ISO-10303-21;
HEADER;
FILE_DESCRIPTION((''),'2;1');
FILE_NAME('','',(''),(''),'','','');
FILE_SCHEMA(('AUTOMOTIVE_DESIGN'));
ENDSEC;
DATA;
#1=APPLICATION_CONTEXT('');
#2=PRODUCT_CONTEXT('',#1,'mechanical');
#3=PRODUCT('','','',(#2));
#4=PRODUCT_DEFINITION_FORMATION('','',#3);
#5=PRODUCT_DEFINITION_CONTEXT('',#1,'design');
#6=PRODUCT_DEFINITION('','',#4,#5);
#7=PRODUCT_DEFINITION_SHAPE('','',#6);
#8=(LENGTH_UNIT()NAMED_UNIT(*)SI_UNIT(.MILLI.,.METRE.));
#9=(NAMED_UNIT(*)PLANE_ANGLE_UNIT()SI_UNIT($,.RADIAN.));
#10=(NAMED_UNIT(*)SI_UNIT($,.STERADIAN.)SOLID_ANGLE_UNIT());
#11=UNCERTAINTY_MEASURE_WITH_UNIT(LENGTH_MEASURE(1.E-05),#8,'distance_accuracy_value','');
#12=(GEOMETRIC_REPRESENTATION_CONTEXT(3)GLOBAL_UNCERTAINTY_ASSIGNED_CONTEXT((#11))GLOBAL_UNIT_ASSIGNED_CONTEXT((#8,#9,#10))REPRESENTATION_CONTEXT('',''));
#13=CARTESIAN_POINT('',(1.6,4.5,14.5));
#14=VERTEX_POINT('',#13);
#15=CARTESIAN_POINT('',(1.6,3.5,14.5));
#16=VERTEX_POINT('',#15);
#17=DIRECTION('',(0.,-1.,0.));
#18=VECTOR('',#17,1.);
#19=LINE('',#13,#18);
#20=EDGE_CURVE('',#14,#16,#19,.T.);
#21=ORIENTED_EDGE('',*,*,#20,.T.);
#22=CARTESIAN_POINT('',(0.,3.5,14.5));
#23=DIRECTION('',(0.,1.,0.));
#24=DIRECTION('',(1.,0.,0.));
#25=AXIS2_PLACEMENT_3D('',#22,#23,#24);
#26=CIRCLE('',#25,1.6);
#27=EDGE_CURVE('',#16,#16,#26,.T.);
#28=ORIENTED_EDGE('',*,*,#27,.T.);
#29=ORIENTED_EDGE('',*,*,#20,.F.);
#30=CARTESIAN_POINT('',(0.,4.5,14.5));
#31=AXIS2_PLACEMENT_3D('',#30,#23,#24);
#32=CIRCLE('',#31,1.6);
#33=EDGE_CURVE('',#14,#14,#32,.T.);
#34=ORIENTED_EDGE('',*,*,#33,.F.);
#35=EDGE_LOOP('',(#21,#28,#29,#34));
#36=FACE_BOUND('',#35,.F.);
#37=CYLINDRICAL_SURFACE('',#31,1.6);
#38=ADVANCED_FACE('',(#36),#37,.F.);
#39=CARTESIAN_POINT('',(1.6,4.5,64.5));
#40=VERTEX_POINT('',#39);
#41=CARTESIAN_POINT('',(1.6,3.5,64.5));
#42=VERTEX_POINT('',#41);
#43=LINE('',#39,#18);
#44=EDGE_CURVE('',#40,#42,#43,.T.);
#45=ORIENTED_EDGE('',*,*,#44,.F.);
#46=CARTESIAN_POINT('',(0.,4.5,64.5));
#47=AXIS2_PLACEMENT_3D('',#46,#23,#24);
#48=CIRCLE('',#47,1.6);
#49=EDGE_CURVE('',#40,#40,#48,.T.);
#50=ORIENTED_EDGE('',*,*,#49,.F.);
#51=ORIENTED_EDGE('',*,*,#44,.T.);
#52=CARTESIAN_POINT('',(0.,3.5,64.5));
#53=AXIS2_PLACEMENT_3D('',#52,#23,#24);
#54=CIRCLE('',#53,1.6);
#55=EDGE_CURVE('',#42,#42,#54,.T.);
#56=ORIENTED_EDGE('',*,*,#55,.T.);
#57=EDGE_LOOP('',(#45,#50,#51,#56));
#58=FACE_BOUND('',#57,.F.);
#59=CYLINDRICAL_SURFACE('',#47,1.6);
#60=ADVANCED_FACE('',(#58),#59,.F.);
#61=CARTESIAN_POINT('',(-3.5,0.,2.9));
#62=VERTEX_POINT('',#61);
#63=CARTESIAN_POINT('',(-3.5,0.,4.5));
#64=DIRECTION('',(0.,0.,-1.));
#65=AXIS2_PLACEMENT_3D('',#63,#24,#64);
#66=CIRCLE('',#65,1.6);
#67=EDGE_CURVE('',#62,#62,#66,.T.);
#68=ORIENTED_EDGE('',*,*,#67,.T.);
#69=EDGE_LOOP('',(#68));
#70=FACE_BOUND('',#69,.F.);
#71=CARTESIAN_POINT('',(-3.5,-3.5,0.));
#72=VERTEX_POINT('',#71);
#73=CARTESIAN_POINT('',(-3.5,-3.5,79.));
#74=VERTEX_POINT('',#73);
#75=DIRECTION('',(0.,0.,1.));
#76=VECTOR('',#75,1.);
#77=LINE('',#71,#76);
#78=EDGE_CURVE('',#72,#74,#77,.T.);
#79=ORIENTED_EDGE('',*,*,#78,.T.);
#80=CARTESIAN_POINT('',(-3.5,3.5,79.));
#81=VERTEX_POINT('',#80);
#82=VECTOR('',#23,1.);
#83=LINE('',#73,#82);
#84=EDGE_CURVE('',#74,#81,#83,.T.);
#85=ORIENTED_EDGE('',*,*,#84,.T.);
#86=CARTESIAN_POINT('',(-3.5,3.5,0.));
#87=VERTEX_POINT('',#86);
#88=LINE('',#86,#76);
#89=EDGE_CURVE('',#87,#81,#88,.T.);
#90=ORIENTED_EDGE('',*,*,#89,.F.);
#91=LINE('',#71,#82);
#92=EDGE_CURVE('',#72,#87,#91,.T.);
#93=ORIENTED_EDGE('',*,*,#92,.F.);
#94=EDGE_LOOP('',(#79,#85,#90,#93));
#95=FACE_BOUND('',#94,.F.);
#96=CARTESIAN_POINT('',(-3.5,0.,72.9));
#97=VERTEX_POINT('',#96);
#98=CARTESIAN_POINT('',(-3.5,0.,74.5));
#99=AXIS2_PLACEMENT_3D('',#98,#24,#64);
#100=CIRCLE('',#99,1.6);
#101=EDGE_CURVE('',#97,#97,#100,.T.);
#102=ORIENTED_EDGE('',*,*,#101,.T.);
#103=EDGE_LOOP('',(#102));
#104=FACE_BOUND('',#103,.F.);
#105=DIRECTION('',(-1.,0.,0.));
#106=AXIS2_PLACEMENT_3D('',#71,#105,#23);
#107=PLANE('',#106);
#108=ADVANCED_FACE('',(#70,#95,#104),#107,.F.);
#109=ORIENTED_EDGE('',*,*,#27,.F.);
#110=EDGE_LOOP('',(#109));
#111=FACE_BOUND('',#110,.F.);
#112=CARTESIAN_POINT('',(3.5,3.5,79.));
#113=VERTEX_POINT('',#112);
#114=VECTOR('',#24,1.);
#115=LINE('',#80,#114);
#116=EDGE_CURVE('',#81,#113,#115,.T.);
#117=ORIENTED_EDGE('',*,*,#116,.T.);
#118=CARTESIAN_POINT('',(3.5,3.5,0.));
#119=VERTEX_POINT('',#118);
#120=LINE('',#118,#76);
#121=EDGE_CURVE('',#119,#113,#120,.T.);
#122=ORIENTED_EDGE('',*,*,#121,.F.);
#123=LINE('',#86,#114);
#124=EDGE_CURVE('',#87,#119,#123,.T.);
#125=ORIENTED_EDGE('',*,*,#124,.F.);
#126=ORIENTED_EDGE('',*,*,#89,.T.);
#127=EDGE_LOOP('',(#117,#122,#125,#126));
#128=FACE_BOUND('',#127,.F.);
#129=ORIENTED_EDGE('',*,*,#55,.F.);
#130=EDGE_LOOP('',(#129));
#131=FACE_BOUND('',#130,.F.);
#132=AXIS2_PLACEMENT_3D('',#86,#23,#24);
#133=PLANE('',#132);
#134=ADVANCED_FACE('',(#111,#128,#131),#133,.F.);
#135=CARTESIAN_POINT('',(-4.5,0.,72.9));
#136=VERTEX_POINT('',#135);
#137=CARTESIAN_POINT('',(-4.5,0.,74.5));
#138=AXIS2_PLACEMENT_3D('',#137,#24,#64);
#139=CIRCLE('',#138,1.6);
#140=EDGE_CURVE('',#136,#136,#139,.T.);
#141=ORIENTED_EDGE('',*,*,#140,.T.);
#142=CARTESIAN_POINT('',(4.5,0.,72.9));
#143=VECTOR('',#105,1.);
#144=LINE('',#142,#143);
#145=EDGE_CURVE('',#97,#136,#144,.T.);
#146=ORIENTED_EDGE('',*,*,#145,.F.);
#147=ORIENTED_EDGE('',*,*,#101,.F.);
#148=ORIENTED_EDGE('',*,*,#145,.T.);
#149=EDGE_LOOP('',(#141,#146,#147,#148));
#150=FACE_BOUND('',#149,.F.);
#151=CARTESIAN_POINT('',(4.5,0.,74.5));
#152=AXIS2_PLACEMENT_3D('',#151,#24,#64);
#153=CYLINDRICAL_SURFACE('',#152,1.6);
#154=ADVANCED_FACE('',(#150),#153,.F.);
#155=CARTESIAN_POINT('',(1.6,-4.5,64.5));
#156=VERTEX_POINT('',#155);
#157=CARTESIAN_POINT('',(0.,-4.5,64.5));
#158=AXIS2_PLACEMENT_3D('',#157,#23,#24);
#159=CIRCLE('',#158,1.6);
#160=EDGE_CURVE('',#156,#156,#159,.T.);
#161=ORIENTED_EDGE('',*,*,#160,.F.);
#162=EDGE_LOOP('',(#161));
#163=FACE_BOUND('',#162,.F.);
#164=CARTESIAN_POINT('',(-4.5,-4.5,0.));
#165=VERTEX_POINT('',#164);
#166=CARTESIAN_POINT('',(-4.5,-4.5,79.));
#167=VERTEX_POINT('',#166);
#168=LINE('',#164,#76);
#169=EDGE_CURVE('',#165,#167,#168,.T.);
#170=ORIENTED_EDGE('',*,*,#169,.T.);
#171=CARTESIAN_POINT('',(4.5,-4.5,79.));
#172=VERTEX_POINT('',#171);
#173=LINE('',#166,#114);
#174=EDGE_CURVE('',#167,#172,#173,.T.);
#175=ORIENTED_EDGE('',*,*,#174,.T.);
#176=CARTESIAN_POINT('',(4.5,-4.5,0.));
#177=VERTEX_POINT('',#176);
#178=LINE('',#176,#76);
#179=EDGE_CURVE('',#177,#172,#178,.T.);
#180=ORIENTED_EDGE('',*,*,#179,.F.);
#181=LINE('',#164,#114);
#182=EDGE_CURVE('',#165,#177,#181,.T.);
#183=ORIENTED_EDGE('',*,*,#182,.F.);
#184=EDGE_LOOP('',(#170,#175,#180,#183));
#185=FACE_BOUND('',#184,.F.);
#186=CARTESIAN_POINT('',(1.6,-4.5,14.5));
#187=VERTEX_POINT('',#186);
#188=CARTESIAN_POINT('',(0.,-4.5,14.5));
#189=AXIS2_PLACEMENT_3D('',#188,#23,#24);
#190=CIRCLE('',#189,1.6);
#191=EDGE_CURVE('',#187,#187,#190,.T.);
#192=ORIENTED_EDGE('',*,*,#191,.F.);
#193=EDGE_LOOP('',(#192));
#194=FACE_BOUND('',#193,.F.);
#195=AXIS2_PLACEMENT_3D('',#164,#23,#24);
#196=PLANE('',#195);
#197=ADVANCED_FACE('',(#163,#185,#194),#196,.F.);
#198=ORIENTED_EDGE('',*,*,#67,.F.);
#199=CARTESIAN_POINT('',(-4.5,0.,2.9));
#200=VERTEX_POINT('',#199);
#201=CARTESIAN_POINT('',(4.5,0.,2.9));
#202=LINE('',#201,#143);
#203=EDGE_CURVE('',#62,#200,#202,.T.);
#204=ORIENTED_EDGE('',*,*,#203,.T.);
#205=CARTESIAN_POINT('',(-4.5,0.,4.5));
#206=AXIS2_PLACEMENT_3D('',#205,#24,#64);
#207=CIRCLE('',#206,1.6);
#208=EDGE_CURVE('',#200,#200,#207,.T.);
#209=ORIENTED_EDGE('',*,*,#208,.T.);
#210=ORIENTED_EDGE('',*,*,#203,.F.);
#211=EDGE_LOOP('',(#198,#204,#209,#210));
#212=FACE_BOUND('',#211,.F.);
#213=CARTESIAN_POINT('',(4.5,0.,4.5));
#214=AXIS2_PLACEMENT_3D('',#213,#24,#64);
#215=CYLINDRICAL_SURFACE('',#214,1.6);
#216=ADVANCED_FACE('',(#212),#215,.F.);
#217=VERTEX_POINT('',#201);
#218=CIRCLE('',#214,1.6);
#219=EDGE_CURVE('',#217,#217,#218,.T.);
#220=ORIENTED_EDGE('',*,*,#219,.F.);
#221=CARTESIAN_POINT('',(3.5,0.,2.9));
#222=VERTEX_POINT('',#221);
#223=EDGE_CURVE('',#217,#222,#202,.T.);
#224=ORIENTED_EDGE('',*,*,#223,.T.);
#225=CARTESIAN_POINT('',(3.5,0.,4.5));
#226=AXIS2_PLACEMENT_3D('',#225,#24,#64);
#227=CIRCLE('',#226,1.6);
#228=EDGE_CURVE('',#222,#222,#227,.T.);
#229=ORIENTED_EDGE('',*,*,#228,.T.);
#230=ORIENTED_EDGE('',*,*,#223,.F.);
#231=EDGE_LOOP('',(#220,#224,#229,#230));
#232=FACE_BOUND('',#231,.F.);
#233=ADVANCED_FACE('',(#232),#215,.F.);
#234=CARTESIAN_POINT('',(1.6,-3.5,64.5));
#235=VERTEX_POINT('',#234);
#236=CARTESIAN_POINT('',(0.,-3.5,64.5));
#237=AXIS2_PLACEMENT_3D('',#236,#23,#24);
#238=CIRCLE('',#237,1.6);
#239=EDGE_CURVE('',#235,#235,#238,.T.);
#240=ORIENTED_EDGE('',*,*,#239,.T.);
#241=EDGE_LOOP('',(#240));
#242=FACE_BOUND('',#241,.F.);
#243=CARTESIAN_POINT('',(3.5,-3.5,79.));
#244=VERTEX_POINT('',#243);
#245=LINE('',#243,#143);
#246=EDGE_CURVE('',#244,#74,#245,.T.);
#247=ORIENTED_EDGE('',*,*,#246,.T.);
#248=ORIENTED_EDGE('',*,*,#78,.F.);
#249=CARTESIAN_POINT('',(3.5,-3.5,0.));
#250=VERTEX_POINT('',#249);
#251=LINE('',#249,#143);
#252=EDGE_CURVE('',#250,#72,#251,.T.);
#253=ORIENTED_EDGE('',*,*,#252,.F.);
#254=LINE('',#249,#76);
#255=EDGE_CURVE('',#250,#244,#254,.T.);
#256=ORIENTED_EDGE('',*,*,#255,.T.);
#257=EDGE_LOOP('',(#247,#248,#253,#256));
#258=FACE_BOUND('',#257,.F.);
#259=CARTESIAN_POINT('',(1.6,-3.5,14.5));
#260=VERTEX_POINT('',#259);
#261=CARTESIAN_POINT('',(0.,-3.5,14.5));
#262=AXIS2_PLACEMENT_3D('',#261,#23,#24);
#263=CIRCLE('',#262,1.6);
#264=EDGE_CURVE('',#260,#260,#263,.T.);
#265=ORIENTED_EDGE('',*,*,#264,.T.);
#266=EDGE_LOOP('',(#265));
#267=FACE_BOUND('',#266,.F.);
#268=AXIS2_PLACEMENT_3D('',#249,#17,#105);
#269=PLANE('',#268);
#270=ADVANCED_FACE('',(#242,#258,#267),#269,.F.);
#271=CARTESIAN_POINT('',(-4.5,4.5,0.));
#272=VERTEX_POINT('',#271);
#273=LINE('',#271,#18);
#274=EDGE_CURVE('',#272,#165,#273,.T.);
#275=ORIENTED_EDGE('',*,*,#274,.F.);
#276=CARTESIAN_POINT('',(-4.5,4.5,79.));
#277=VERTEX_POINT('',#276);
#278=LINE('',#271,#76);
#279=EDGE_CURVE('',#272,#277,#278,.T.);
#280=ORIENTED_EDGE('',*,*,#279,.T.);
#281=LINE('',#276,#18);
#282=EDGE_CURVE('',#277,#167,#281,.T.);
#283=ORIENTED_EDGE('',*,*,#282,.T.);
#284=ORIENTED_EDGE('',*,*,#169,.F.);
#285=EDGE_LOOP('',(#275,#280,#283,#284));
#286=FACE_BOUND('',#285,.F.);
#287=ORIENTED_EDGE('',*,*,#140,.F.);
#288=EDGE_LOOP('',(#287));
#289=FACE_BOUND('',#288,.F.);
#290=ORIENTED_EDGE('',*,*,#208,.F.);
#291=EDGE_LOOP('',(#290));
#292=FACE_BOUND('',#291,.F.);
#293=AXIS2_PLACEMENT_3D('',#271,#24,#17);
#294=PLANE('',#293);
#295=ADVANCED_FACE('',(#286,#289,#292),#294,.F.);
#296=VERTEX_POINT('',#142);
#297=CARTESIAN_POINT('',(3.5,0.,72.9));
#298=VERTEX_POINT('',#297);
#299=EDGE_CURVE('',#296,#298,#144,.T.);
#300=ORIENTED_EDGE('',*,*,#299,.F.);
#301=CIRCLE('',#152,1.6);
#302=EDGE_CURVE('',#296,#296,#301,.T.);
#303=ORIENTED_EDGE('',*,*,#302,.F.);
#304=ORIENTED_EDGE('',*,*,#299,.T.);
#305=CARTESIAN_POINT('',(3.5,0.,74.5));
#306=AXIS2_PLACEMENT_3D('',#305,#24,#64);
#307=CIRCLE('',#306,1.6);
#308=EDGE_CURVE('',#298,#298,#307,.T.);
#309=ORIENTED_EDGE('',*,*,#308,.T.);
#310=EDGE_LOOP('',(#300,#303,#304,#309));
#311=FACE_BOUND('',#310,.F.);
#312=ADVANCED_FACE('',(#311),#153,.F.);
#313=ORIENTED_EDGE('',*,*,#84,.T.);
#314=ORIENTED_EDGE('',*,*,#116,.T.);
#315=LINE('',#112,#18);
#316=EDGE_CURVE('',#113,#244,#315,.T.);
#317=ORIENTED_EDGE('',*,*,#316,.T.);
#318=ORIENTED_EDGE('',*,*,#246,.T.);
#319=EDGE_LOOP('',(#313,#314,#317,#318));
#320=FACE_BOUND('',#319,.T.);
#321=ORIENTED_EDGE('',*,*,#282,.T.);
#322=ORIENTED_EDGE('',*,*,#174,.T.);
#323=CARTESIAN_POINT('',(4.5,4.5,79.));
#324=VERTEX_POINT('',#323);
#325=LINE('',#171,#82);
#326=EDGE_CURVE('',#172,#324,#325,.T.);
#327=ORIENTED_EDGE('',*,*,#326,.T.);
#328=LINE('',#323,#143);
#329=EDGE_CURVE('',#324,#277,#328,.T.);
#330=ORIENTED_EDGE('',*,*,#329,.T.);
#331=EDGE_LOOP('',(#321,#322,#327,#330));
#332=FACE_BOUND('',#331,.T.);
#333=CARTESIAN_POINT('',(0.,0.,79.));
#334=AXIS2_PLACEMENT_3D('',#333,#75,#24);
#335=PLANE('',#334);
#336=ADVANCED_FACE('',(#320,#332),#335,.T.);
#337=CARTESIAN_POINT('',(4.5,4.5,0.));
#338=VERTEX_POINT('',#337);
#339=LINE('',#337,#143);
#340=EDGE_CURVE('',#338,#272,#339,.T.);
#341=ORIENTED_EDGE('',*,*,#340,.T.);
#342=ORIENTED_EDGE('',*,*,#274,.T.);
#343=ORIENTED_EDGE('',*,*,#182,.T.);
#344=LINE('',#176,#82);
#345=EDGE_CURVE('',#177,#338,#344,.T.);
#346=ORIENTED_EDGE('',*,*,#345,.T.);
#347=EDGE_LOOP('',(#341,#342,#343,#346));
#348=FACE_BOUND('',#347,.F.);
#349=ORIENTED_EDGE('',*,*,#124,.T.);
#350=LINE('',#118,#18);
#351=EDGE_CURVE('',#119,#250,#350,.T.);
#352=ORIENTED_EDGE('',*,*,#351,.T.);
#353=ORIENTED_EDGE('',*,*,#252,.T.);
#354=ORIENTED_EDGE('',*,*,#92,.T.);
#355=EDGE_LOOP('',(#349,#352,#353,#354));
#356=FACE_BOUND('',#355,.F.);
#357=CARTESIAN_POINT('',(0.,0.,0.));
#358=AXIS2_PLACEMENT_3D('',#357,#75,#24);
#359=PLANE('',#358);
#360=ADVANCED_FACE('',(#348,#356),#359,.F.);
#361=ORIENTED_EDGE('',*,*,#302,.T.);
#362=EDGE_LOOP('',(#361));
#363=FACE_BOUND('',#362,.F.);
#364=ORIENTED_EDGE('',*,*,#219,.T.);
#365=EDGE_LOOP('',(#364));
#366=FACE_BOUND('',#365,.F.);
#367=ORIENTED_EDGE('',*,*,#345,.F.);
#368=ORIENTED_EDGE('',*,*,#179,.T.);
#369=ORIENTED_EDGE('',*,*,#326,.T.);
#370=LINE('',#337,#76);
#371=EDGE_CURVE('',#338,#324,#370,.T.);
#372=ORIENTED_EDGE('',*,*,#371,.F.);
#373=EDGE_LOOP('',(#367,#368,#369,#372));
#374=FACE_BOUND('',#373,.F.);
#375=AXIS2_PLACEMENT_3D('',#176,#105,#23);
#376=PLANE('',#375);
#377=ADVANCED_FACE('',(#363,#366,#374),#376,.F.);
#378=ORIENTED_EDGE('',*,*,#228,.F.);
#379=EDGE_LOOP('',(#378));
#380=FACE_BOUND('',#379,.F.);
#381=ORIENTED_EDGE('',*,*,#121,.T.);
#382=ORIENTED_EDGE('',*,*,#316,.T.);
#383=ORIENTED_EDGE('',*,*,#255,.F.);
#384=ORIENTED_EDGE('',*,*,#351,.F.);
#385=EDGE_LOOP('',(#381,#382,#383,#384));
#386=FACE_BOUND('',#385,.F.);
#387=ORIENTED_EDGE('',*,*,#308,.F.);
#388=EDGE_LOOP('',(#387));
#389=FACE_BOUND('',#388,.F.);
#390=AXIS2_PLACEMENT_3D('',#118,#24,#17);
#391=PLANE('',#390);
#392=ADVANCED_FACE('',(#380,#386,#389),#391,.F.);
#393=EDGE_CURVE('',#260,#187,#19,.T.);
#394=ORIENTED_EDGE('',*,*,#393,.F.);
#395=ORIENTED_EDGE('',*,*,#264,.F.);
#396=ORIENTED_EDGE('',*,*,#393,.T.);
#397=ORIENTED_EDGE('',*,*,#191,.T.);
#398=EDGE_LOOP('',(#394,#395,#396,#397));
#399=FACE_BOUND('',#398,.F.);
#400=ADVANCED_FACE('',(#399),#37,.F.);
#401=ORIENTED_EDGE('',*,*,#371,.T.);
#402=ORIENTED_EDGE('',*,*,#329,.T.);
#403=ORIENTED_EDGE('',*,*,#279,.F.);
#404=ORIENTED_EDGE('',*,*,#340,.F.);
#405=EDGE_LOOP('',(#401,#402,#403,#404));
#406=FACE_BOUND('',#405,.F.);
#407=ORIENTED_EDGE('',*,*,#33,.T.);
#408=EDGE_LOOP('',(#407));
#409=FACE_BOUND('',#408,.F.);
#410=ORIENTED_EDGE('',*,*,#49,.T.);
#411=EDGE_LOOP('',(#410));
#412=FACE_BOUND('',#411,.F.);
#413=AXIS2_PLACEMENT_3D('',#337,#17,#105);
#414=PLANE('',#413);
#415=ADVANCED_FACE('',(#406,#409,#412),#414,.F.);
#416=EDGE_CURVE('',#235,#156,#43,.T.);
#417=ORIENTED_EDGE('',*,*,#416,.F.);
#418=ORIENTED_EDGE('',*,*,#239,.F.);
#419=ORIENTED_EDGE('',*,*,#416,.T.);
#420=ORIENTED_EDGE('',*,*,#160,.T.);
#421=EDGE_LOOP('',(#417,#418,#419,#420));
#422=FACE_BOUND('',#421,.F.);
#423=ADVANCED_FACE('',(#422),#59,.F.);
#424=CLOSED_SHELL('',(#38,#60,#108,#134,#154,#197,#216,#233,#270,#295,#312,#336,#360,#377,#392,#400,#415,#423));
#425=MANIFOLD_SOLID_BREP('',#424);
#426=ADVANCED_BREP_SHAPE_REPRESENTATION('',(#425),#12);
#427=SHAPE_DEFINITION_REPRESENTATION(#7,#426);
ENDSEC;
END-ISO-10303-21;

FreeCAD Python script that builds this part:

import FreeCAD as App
import Part
import Sketcher


def add_polygon(sketch, points):
    """Adds a closed chain of lines whose ends are joined by coincident constraints."""
    first, n = sketch.GeometryCount, len(points)
    for a, b in zip(points, points[1:] + points[:1]):
        sketch.addGeometry(Part.LineSegment(App.Vector(*a, 0), App.Vector(*b, 0)), False)
    for i in range(n):
        sketch.addConstraint(Sketcher.Constraint("Coincident", first + i, 2, first + (i + 1) % n, 1))

doc = App.newDocument("Part")
params = doc.addObject("Spreadsheet::Sheet", "Params")
for row, (alias, value) in enumerate([
    ("sketch1_width", "9 mm"),
    ("pad1_length", "79 mm"),
    ("sketch2_diameter", "3.2 mm"),
    ("sketch3_diameter", "3.2 mm"),
], start=1):
    params.set(f"A{row}", alias)
    params.set(f"B{row}", "=" + value)
    params.setAlias(f"B{row}", alias)

body = doc.addObject("PartDesign::Body", "Body")

sketch1 = body.newObject("Sketcher::SketchObject", "Sketch")
sketch1.AttachmentSupport = (doc.getObject("XY_Plane"), [""])
sketch1.MapMode = "FlatFace"
add_polygon(sketch1, [(4, -4), (4, 4), (-4, 4), (-4, -4)])
add_polygon(sketch1, [(-4, -4), (-4, 4), (4, 4), (4, -4)])
sketch1.addConstraint(Sketcher.Constraint("Vertical", 0))
sketch1.addConstraint(Sketcher.Constraint("Horizontal", 1))
sketch1.addConstraint(Sketcher.Constraint("Vertical", 2))
sketch1.addConstraint(Sketcher.Constraint("Horizontal", 3))
sketch1.addConstraint(Sketcher.Constraint("Vertical", 4))
sketch1.addConstraint(Sketcher.Constraint("Horizontal", 5))
sketch1.addConstraint(Sketcher.Constraint("Vertical", 6))
sketch1.addConstraint(Sketcher.Constraint("Horizontal", 7))
sketch1.addConstraint(Sketcher.Constraint("Symmetric", 0, 2, 2, 2, -1, 1))
sketch1.addConstraint(Sketcher.Constraint("Symmetric", 4, 2, 6, 2, -1, 1))
sketch1.addConstraint(Sketcher.Constraint("Equal", 3, 0))
sketch1.addConstraint(Sketcher.Constraint("Equal", 7, 4))
sketch1.addConstraint(Sketcher.Constraint("DistanceX", 1, 2, 1, 1, 9.0))
sketch1.addConstraint(Sketcher.Constraint("DistanceX", 1, 2, 4, 2, 1.0))
sketch1.setExpression("Constraints[20]", "Params.sketch1_width")
pad1 = body.newObject("PartDesign::Pad", "Pad")
pad1.Profile = sketch1
pad1.setExpression("Length", "Params.pad1_length")

sketch2 = body.newObject("Sketcher::SketchObject", "Sketch001")
sketch2.AttachmentSupport = (doc.getObject("YZ_Plane"), [""])
sketch2.MapMode = "FlatFace"
sketch2.AttachmentOffset = App.Placement(App.Vector(0, 0, 4.5), App.Rotation())
sketch2.addGeometry(Part.Circle(App.Vector(0, 4.5, 0), App.Vector(0, 0, 1), 1.6), False)
sketch2.addGeometry(Part.Circle(App.Vector(0, 74.5, 0), App.Vector(0, 0, 1), 1.6), False)
sketch2.addConstraint(Sketcher.Constraint("Equal", 0, 1))
sketch2.addConstraint(Sketcher.Constraint("PointOnObject", 0, 3, -2))
sketch2.addConstraint(Sketcher.Constraint("PointOnObject", 1, 3, -2))
sketch2.addConstraint(Sketcher.Constraint("Diameter", 0, 3.2))
sketch2.addConstraint(Sketcher.Constraint("DistanceY", 0, 3, 1, 3, 70.0))
sketch2.addConstraint(Sketcher.Constraint("DistanceY", -1, 1, 0, 3, 4.5))
sketch2.setExpression("Constraints[3]", "Params.sketch2_diameter")
pocket1 = body.newObject("PartDesign::Pocket", "Pocket")
pocket1.Profile = sketch2
pocket1.Type = "ThroughAll"

sketch3 = body.newObject("Sketcher::SketchObject", "Sketch002")
sketch3.AttachmentSupport = (doc.getObject("XZ_Plane"), [""])
sketch3.MapMode = "FlatFace"
sketch3.AttachmentOffset = App.Placement(App.Vector(0, 0, -4.5), App.Rotation())
sketch3.addGeometry(Part.Circle(App.Vector(0, 14.5, 0), App.Vector(0, 0, 1), 1.6), False)
sketch3.addGeometry(Part.Circle(App.Vector(0, 64.5, 0), App.Vector(0, 0, 1), 1.6), False)
sketch3.addConstraint(Sketcher.Constraint("Equal", 0, 1))
sketch3.addConstraint(Sketcher.Constraint("PointOnObject", 0, 3, -2))
sketch3.addConstraint(Sketcher.Constraint("PointOnObject", 1, 3, -2))
sketch3.addConstraint(Sketcher.Constraint("Diameter", 0, 3.2))
sketch3.addConstraint(Sketcher.Constraint("DistanceY", 0, 3, 1, 3, 50.0))
sketch3.addConstraint(Sketcher.Constraint("DistanceY", -1, 1, 0, 3, 14.5))
sketch3.setExpression("Constraints[3]", "Params.sketch3_diameter")
pocket2 = body.newObject("PartDesign::Pocket", "Pocket001")
pocket2.Profile = sketch3
pocket2.Type = "ThroughAll"
pocket2.Reversed = True

doc.recompute()
